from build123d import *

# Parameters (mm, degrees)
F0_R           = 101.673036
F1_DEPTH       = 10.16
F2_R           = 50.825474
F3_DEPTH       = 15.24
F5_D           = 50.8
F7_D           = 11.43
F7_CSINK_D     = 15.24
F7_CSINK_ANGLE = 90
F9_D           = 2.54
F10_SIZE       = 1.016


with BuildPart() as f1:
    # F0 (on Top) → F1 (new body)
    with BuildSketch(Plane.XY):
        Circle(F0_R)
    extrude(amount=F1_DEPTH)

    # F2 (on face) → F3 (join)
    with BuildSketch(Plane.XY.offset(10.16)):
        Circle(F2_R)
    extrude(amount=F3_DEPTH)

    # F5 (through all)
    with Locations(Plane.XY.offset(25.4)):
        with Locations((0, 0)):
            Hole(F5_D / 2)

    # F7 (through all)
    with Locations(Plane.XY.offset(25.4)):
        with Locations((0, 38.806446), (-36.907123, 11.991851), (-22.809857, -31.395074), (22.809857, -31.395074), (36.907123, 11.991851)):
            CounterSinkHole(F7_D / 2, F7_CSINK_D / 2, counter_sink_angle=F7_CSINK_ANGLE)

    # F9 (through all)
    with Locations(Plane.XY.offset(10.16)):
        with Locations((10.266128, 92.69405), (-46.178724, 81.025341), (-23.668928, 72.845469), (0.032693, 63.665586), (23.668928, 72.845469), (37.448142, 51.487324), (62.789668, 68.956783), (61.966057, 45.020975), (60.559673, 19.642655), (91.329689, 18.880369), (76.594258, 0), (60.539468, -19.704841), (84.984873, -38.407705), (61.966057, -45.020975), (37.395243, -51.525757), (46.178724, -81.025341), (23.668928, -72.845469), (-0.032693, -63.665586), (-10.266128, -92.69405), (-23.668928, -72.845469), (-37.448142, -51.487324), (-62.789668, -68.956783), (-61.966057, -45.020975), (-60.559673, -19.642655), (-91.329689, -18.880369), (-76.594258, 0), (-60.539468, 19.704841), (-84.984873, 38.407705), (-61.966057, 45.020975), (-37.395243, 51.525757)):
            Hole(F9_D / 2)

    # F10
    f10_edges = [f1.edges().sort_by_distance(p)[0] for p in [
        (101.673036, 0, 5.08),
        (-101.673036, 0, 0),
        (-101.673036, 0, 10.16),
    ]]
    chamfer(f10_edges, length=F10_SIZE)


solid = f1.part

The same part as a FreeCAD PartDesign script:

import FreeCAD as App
import Part
import Sketcher
from FreeCAD import Vector
Q = App.Units.Quantity


def edges_at(feature, points):
    """Names of the edges that pass closest to the given points."""
    edges = feature.Shape.Edges
    near = lambda p: min(range(len(edges)), key=lambda i: edges[i].distToShape(Part.Vertex(*p))[0])
    return sorted({f"Edge{near(p) + 1}" for p in points})

doc = App.newDocument("Part")
body = doc.addObject("PartDesign::Body", "Body")

sketch1 = doc.addObject("Sketcher::SketchObject", "Sketch")
body.addObject(sketch1)
sketch1.AttachmentSupport = (doc.XY_Plane, [""])
sketch1.MapMode = "FlatFace"
sketch1.addGeometry(Part.Circle(Vector(0, 0, 0), Vector(0, 0, 1), 101.673036), False)
sketch1.addConstraint(Sketcher.Constraint("Coincident", 0, 3, -1, 1))
sketch1.addConstraint(Sketcher.Constraint("Diameter", 0, Q("203.346072 mm")))
pad1 = doc.addObject("PartDesign::Pad", "Pad")
body.addObject(pad1)
pad1.Profile = sketch1
pad1.Length = Q("0.4 in")

sketch2 = doc.addObject("Sketcher::SketchObject", "Sketch001")
body.addObject(sketch2)
sketch2.AttachmentSupport = (doc.XY_Plane, [""])
sketch2.MapMode = "FlatFace"
sketch2.AttachmentOffset = App.Placement(Vector(0, 0, 0.4 * 25.4), App.Rotation())
sketch2.addGeometry(Part.Circle(Vector(0, 0, 0), Vector(0, 0, 1), 50.825474), False)
sketch2.addConstraint(Sketcher.Constraint("Coincident", 0, 3, -1, 1))
sketch2.addConstraint(Sketcher.Constraint("Diameter", 0, Q("101.650948 mm")))
pad2 = doc.addObject("PartDesign::Pad", "Pad001")
body.addObject(pad2)
pad2.Profile = sketch2
pad2.Length = Q("0.6 in")

sketch3 = doc.addObject("Sketcher::SketchObject", "Sketch002")
body.addObject(sketch3)
sketch3.AttachmentSupport = (doc.XY_Plane, [""])
sketch3.MapMode = "FlatFace"
sketch3.AttachmentOffset = App.Placement(Vector(0, 0, 1 * 25.4), App.Rotation())
sketch3.addGeometry(Part.Circle(Vector(0, 0, 0), Vector(0, 0, 1), 25.4), False)
sketch3.addConstraint(Sketcher.Constraint("Coincident", 0, 3, -1, 1))
sketch3.addConstraint(Sketcher.Constraint("Diameter", 0, Q("2 in")))
doc.recompute()
hole = doc.addObject("PartDesign::Hole", "Hole")
body.addObject(hole)
hole.Profile = sketch3
hole.ThreadType = "None"
hole.Diameter = Q("2 in")
hole.DepthType = "ThroughAll"

sketch4 = doc.addObject("Sketcher::SketchObject", "Sketch003")
body.addObject(sketch4)
sketch4.AttachmentSupport = (doc.XY_Plane, [""])
sketch4.MapMode = "FlatFace"
sketch4.AttachmentOffset = App.Placement(Vector(0, 0, 1 * 25.4), App.Rotation())
sketch4.addGeometry(Part.Circle(Vector(0, 38.806446, 0), Vector(0, 0, 1), 5.715), False)
sketch4.addGeometry(Part.Circle(Vector(-36.907123, 11.991851, 0), Vector(0, 0, 1), 5.715), False)
sketch4.addGeometry(Part.Circle(Vector(-22.809857, -31.395074, 0), Vector(0, 0, 1), 5.715), False)
sketch4.addGeometry(Part.Circle(Vector(22.809857, -31.395074, 0), Vector(0, 0, 1), 5.715), False)
sketch4.addGeometry(Part.Circle(Vector(36.907123, 11.991851, 0), Vector(0, 0, 1), 5.715), False)
sketch4.addConstraint(Sketcher.Constraint("Equal", 0, 1))
sketch4.addConstraint(Sketcher.Constraint("Equal", 1, 2))
sketch4.addConstraint(Sketcher.Constraint("Equal", 2, 3))
sketch4.addConstraint(Sketcher.Constraint("Equal", 3, 4))
sketch4.addConstraint(Sketcher.Constraint("Symmetric", 2, 3, 3, 3, -2))
sketch4.addConstraint(Sketcher.Constraint("Symmetric", 1, 3, 4, 3, -2))
sketch4.addConstraint(Sketcher.Constraint("PointOnObject", 0, 3, -2))
sketch4.addConstraint(Sketcher.Constraint("Diameter", 0, Q("0.45 in")))
sketch4.addConstraint(Sketcher.Constraint("DistanceY", -1, 1, 1, 3, Q("11.991851 mm")))
sketch4.addConstraint(Sketcher.Constraint("DistanceY", 2, 3, 0, 3, Q("70.20152 mm")))
sketch4.addConstraint(Sketcher.Constraint("DistanceX", 1, 3, 3, 3, Q("59.71698 mm")))
sketch4.addConstraint(Sketcher.Constraint("DistanceY", -1, 1, 0, 3, Q("38.806446 mm")))
sketch4.addConstraint(Sketcher.Constraint("DistanceX", 1, 3, -1, 1, Q("36.907123 mm")))
doc.recompute()
hole2 = doc.addObject("PartDesign::Hole", "Hole001")
body.addObject(hole2)
hole2.Profile = sketch4
hole2.ThreadType = "None"
hole2.Diameter = Q("0.45 in")
hole2.DepthType = "ThroughAll"
hole2.HoleCutType = "Countersink"
hole2.HoleCutDiameter = Q("0.6 in")
hole2.HoleCutCountersinkAngle = 90

sketch5 = doc.addObject("Sketcher::SketchObject", "Sketch004")
body.addObject(sketch5)
sketch5.AttachmentSupport = (doc.XY_Plane, [""])
sketch5.MapMode = "FlatFace"
sketch5.AttachmentOffset = App.Placement(Vector(0, 0, 0.4 * 25.4), App.Rotation())
sketch5.addGeometry(Part.Circle(Vector(10.266128, 92.69405, 0), Vector(0, 0, 1), 1.27), False)
sketch5.addGeometry(Part.Circle(Vector(-46.178724, 81.025341, 0), Vector(0, 0, 1), 1.27), False)
sketch5.addGeometry(Part.Circle(Vector(-23.668928, 72.845469, 0), Vector(0, 0, 1), 1.27), False)
sketch5.addGeometry(Part.Circle(Vector(0.032693, 63.665586, 0), Vector(0, 0, 1), 1.27), False)
sketch5.addGeometry(Part.Circle(Vector(23.668928, 72.845469, 0), Vector(0, 0, 1), 1.27), False)
sketch5.addGeometry(Part.Circle(Vector(37.448142, 51.487324, 0), Vector(0, 0, 1), 1.27), False)
sketch5.addGeometry(Part.Circle(Vector(62.789668, 68.956783, 0), Vector(0, 0, 1), 1.27), False)
sketch5.addGeometry(Part.Circle(Vector(61.966057, 45.020975, 0), Vector(0, 0, 1), 1.27), False)
sketch5.addGeometry(Part.Circle(Vector(60.559673, 19.642655, 0), Vector(0, 0, 1), 1.27), False)
sketch5.addGeometry(Part.Circle(Vector(91.329689, 18.880369, 0), Vector(0, 0, 1), 1.27), False)
sketch5.addGeometry(Part.Circle(Vector(76.594258, 0, 0), Vector(0, 0, 1), 1.27), False)
sketch5.addGeometry(Part.Circle(Vector(60.539468, -19.704841, 0), Vector(0, 0, 1), 1.27), False)
sketch5.addGeometry(Part.Circle(Vector(84.984873, -38.407705, 0), Vector(0, 0, 1), 1.27), False)
sketch5.addGeometry(Part.Circle(Vector(61.966057, -45.020975, 0), Vector(0, 0, 1), 1.27), False)
sketch5.addGeometry(Part.Circle(Vector(37.395243, -51.525757, 0), Vector(0, 0, 1), 1.27), False)
sketch5.addGeometry(Part.Circle(Vector(46.178724, -81.025341, 0), Vector(0, 0, 1), 1.27), False)
sketch5.addGeometry(Part.Circle(Vector(23.668928, -72.845469, 0), Vector(0, 0, 1), 1.27), False)
sketch5.addGeometry(Part.Circle(Vector(-0.032693, -63.665586, 0), Vector(0, 0, 1), 1.27), False)
sketch5.addGeometry(Part.Circle(Vector(-10.266128, -92.69405, 0), Vector(0, 0, 1), 1.27), False)
sketch5.addGeometry(Part.Circle(Vector(-23.668928, -72.845469, 0), Vector(0, 0, 1), 1.27), False)
sketch5.addGeometry(Part.Circle(Vector(-37.448142, -51.487324, 0), Vector(0, 0, 1), 1.27), False)
sketch5.addGeometry(Part.Circle(Vector(-62.789668, -68.956783, 0), Vector(0, 0, 1), 1.27), False)
sketch5.addGeometry(Part.Circle(Vector(-61.966057, -45.020975, 0), Vector(0, 0, 1), 1.27), False)
sketch5.addGeometry(Part.Circle(Vector(-60.559673, -19.642655, 0), Vector(0, 0, 1), 1.27), False)
sketch5.addGeometry(Part.Circle(Vector(-91.329689, -18.880369, 0), Vector(0, 0, 1), 1.27), False)
sketch5.addGeometry(Part.Circle(Vector(-76.594258, 0, 0), Vector(0, 0, 1), 1.27), False)
sketch5.addGeometry(Part.Circle(Vector(-60.539468, 19.704841, 0), Vector(0, 0, 1), 1.27), False)
sketch5.addGeometry(Part.Circle(Vector(-84.984873, 38.407705, 0), Vector(0, 0, 1), 1.27), False)
sketch5.addGeometry(Part.Circle(Vector(-61.966057, 45.020975, 0), Vector(0, 0, 1), 1.27), False)
sketch5.addGeometry(Part.Circle(Vector(-37.395243, 51.525757, 0), Vector(0, 0, 1), 1.27), False)
sketch5.addConstraint(Sketcher.Constraint("Equal", 0, 1))
sketch5.addConstraint(Sketcher.Constraint("Equal", 1, 2))
sketch5.addConstraint(Sketcher.Constraint("Equal", 2, 3))
sketch5.addConstraint(Sketcher.Constraint("Equal", 3, 4))
sketch5.addConstraint(Sketcher.Constraint("Equal", 4, 5))
sketch5.addConstraint(Sketcher.Constraint("Equal", 5, 6))
sketch5.addConstraint(Sketcher.Constraint("Equal", 6, 7))
sketch5.addConstraint(Sketcher.Constraint("Equal", 7, 8))
sketch5.addConstraint(Sketcher.Constraint("Equal", 8, 9))
sketch5.addConstraint(Sketcher.Constraint("Equal", 9, 10))
sketch5.addConstraint(Sketcher.Constraint("Equal", 10, 11))
sketch5.addConstraint(Sketcher.Constraint("Equal", 11, 12))
sketch5.addConstraint(Sketcher.Constraint("Equal", 12, 13))
sketch5.addConstraint(Sketcher.Constraint("Equal", 13, 14))
sketch5.addConstraint(Sketcher.Constraint("Equal", 14, 15))
sketch5.addConstraint(Sketcher.Constraint("Equal", 15, 16))
sketch5.addConstraint(Sketcher.Constraint("Equal", 16, 17))
sketch5.addConstraint(Sketcher.Constraint("Equal", 17, 18))
sketch5.addConstraint(Sketcher.Constraint("Equal", 18, 19))
sketch5.addConstraint(Sketcher.Constraint("Equal", 19, 20))
sketch5.addConstraint(Sketcher.Constraint("Equal", 20, 21))
sketch5.addConstraint(Sketcher.Constraint("Equal", 21, 22))
sketch5.addConstraint(Sketcher.Constraint("Equal", 22, 23))
sketch5.addConstraint(Sketcher.Constraint("Equal", 23, 24))
sketch5.addConstraint(Sketcher.Constraint("Equal", 24, 25))
sketch5.addConstraint(Sketcher.Constraint("Equal", 25, 26))
sketch5.addConstraint(Sketcher.Constraint("Equal", 26, 27))
sketch5.addConstraint(Sketcher.Constraint("Equal", 27, 28))
sketch5.addConstraint(Sketcher.Constraint("Equal", 28, 29))
sketch5.addConstraint(Sketcher.Constraint("Symmetric", 1, 3, 15, 3, -1, 1))
sketch5.addConstraint(Sketcher.Constraint("Symmetric", 2, 3, 16, 3, -1, 1))
sketch5.addConstraint(Sketcher.Constraint("Symmetric", 3, 3, 17, 3, -1, 1))
sketch5.addConstraint(Sketcher.Constraint("Symmetric", 0, 3, 18, 3, -1, 1))
sketch5.addConstraint(Sketcher.Constraint("Symmetric", 4, 3, 19, 3, -1, 1))
sketch5.addConstraint(Sketcher.Constraint("Symmetric", 5, 3, 20, 3, -1, 1))
sketch5.addConstraint(Sketcher.Constraint("Symmetric", 6, 3, 21, 3, -1, 1))
sketch5.addConstraint(Sketcher.Constraint("Symmetric", 7, 3, 22, 3, -1, 1))
sketch5.addConstraint(Sketcher.Constraint("Symmetric", 8, 3, 23, 3, -1, 1))
sketch5.addConstraint(Sketcher.Constraint("Symmetric", 9, 3, 24, 3, -1, 1))
sketch5.addConstraint(Sketcher.Constraint("Symmetric", 10, 3, 25, 3, -1, 1))
sketch5.addConstraint(Sketcher.Constraint("Symmetric", 11, 3, 26, 3, -1, 1))
sketch5.addConstraint(Sketcher.Constraint("Symmetric", 12, 3, 27, 3, -1, 1))
sketch5.addConstraint(Sketcher.Constraint("Symmetric", 13, 3, 28, 3, -1, 1))
sketch5.addConstraint(Sketcher.Constraint("Symmetric", 14, 3, 29, 3, -1, 1))
sketch5.addConstraint(Sketcher.Constraint("Symmetric", 2, 3, 4, 3, -2))
sketch5.addConstraint(Sketcher.Constraint("Symmetric", 13, 3, 22, 3, -2))
sketch5.addConstraint(Sketcher.Constraint("PointOnObject", 10, 3, -1))
sketch5.addConstraint(Sketcher.Constraint("Diameter", 0, Q("0.1 in")))
sketch5.addConstraint(Sketcher.Constraint("DistanceX", 0, 3, 4, 3, Q("13.4028 mm")))
sketch5.addConstraint(Sketcher.Constraint("DistanceY", 9, 3, 4, 3, Q("53.9651 mm")))
sketch5.addConstraint(Sketcher.Constraint("DistanceX", 7, 3, 10, 3, Q("14.628201 mm")))
sketch5.addConstraint(Sketcher.Constraint("DistanceX", 8, 3, 12, 3, Q("24.4252 mm")))
sketch5.addConstraint(Sketcher.Constraint("DistanceY", 15, 3, 11, 3, Q("61.3205 mm")))
sketch5.addConstraint(Sketcher.Constraint("DistanceY", -1, 1, 0, 3, Q("92.69405 mm")))
sketch5.addConstraint(Sketcher.Constraint("DistanceY", -1, 1, 1, 3, Q("81.025341 mm")))
sketch5.addConstraint(Sketcher.Constraint("DistanceX", 2, 3, -1, 1, Q("23.668928 mm")))
sketch5.addConstraint(Sketcher.Constraint("DistanceY", -1, 1, 2, 3, Q("72.845469 mm")))
sketch5.addConstraint(Sketcher.Constraint("DistanceX", -1, 1, 5, 3, Q("37.448142 mm")))
sketch5.addConstraint(Sketcher.Constraint("DistanceX", -1, 1, 9, 3, Q("91.329689 mm")))
sketch5.addConstraint(Sketcher.Constraint("DistanceX", 2, 3, 3, 3, Q("23.701621 mm")))
sketch5.addConstraint(Sketcher.Constraint("DistanceY", 5, 3, 3, 3, Q("12.178262 mm")))
sketch5.addConstraint(Sketcher.Constraint("DistanceY", 5, 3, 6, 3, Q("17.469459 mm")))
sketch5.addConstraint(Sketcher.Constraint("DistanceX", 4, 3, 6, 3, Q("39.12074 mm")))
sketch5.addConstraint(Sketcher.Constraint("DistanceX", 7, 3, 6, 3, Q("0.823611 mm")))
sketch5.addConstraint(Sketcher.Constraint("DistanceY", 7, 3, 6, 3, Q("23.935808 mm")))
sketch5.addConstraint(Sketcher.Constraint("DistanceY", 8, 3, 7, 3, Q("25.37832 mm")))
sketch5.addConstraint(Sketcher.Constraint("DistanceX", 5, 3, 8, 3, Q("23.111531 mm")))
sketch5.addConstraint(Sketcher.Constraint("DistanceX", 11, 3, 10, 3, Q("16.05479 mm")))
sketch5.addConstraint(Sketcher.Constraint("DistanceY", 12, 3, 8, 3, Q("58.05036 mm")))
sketch5.addConstraint(Sketcher.Constraint("DistanceY", 13, 3, 12, 3, Q("6.61327 mm")))
sketch5.addConstraint(Sketcher.Constraint("DistanceY", 14, 3, 13, 3, Q("6.504782 mm")))
sketch5.addConstraint(Sketcher.Constraint("DistanceX", 14, 3, 12, 3, Q("47.58963 mm")))
sketch5.addConstraint(Sketcher.Constraint("DistanceX", 14, 3, 15, 3, Q("8.783481 mm")))
doc.recompute()
hole3 = doc.addObject("PartDesign::Hole", "Hole002")
body.addObject(hole3)
hole3.Profile = sketch5
hole3.ThreadType = "None"
hole3.Diameter = Q("0.1 in")
hole3.DepthType = "ThroughAll"
doc.recompute()

chamfer = doc.addObject("PartDesign::Chamfer", "Chamfer")
body.addObject(chamfer)
chamfer.Base = (hole3, edges_at(hole3, [(101.673, 0, 5.08), (-101.673, 0, 0), (-101.673, 0, 10.16)]))
chamfer.Size = Q("0.04 in")

doc.recompute()
